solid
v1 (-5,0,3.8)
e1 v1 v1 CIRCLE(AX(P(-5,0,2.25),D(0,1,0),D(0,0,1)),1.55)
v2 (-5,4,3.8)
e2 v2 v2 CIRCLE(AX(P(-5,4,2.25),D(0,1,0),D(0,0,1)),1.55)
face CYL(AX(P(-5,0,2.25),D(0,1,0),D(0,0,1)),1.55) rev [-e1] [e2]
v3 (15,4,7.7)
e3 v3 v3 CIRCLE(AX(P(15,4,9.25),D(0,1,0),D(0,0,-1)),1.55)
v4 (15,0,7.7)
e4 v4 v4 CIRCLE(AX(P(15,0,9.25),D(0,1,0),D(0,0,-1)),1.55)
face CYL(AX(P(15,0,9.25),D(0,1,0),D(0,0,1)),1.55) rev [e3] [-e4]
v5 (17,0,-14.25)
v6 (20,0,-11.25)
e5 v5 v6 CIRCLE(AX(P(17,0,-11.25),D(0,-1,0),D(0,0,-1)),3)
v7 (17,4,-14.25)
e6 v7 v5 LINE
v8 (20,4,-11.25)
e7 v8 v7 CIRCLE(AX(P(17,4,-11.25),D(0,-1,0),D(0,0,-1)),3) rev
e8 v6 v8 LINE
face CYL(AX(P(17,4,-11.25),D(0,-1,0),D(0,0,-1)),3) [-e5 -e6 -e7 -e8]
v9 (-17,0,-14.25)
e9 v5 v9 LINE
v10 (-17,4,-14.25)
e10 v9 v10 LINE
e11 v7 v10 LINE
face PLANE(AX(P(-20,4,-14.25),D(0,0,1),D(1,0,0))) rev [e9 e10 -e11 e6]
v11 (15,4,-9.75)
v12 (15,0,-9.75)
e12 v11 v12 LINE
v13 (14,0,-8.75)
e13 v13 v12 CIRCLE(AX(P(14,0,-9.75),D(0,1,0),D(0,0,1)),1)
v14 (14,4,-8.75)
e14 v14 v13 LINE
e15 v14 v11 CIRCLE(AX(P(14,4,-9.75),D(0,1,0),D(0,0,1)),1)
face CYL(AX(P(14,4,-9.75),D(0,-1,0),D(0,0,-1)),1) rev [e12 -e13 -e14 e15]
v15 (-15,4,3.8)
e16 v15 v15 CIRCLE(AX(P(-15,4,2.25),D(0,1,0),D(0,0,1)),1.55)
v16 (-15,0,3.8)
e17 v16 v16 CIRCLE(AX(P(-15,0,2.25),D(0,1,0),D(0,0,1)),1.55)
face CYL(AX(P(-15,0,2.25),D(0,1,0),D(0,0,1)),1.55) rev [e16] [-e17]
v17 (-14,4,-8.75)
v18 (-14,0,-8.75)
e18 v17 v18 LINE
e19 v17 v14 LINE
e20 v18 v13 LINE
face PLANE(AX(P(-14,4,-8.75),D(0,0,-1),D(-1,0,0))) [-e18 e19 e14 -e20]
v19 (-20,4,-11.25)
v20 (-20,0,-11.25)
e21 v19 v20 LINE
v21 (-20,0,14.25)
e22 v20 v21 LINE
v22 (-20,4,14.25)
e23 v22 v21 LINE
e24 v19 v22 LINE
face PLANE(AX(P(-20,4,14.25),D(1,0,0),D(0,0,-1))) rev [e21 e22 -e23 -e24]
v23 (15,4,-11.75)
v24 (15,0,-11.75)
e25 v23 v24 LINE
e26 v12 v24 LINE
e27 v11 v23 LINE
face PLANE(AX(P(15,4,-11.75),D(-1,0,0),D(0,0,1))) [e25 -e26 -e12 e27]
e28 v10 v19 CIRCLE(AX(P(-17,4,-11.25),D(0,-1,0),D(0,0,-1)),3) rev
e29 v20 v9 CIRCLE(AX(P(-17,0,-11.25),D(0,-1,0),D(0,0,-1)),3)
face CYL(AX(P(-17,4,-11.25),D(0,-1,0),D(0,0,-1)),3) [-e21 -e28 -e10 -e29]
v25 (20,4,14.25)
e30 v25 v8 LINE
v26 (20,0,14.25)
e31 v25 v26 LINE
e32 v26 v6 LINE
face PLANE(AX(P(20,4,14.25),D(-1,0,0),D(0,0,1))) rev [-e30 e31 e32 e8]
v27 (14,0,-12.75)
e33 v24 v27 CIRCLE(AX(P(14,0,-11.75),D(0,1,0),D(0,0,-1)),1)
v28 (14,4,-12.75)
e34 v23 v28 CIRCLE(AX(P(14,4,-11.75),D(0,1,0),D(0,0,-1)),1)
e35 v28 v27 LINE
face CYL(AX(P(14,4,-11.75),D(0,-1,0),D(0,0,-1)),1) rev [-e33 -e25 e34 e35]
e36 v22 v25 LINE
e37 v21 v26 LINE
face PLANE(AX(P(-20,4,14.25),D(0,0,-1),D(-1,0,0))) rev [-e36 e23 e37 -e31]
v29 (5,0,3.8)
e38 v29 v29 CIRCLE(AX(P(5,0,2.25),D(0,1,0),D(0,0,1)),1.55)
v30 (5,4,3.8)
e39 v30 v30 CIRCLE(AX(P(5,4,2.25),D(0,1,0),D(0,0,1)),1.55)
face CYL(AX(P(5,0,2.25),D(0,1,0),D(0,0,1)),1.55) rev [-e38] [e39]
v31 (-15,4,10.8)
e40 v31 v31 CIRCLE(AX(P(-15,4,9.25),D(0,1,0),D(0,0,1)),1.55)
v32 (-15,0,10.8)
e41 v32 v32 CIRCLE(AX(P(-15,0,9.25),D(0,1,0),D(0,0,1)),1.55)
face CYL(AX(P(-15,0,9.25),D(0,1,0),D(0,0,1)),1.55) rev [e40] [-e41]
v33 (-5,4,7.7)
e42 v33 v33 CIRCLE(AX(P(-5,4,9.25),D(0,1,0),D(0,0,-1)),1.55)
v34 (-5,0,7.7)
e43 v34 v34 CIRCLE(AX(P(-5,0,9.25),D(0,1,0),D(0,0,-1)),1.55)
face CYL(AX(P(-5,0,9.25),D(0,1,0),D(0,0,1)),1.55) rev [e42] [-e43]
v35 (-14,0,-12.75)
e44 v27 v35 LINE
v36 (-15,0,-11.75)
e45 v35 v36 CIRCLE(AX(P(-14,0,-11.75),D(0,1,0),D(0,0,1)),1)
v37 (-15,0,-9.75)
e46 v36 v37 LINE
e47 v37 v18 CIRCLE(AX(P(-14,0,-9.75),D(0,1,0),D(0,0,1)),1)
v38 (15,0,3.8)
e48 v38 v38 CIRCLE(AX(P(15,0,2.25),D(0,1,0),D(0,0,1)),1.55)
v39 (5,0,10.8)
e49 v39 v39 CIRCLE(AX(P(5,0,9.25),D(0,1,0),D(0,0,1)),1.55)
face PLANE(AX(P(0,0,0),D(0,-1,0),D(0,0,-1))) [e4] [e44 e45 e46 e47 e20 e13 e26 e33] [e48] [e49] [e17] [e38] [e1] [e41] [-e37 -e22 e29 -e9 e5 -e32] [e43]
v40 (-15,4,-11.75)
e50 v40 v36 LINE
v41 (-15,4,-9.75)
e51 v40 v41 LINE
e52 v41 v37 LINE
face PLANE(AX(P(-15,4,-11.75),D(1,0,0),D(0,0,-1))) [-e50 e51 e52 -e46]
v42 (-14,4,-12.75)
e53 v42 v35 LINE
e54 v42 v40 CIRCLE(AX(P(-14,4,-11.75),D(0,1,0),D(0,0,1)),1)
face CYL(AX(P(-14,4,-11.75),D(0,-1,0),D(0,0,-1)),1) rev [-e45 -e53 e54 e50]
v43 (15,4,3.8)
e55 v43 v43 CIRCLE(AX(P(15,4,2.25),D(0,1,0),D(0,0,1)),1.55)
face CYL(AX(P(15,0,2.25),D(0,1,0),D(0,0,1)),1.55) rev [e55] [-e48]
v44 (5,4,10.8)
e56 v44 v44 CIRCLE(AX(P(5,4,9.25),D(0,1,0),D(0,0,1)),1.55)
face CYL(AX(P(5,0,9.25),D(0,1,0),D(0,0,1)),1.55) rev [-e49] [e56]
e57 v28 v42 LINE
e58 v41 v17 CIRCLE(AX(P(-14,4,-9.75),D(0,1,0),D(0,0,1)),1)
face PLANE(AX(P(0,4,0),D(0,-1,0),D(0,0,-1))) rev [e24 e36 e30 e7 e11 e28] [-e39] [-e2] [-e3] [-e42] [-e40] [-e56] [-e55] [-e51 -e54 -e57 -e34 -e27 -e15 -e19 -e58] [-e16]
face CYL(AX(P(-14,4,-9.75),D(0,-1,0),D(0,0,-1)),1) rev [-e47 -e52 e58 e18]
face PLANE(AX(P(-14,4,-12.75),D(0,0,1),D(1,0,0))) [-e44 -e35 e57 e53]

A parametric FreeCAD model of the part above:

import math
import FreeCAD as App
import Part
import Sketcher
from FreeCAD import Vector


def edges_at(feature, points):
    """Names of the edges that pass closest to the given points."""
    edges = feature.Shape.Edges
    near = lambda p: min(range(len(edges)), key=lambda i: edges[i].distToShape(Part.Vertex(*p))[0])
    return sorted({f"Edge{near(p) + 1}" for p in points})

doc = App.newDocument("Part")
body = doc.addObject("PartDesign::Body", "Body")

# Sketch on XZ plane
sketch1 = doc.addObject("Sketcher::SketchObject", "Sketch")
body.addObject(sketch1)
sketch1.AttachmentSupport = (doc.XZ_Plane, [""])
sketch1.MapMode = "FlatFace"
sketch1.addGeometry(Part.LineSegment(Vector(-20, -14.2, 0), Vector(-20, 14.2, 0)), False)
sketch1.addGeometry(Part.LineSegment(Vector(-20, 14.2, 0), Vector(20, 14.2, 0)), False)
sketch1.addGeometry(Part.LineSegment(Vector(20, 14.2, 0), Vector(20, -14.2, 0)), False)
sketch1.addGeometry(Part.LineSegment(Vector(20, -14.2, 0), Vector(-20, -14.2, 0)), False)
sketch1.addGeometry(Part.ArcOfCircle(Part.Circle(Vector(-14, -11.7, 0), Vector(0, 0, 1), 1), math.radians(-180), math.radians(-90)), False)
sketch1.addGeometry(Part.LineSegment(Vector(-14, -12.8, 0), Vector(14, -12.8, 0)), False)
sketch1.addGeometry(Part.ArcOfCircle(Part.Circle(Vector(14, -11.7, 0), Vector(0, 0, 1), 1), math.radians(-90), math.radians(0)), False)
sketch1.addGeometry(Part.LineSegment(Vector(15, -11.8, 0), Vector(15, -9.8, 0)), False)
sketch1.addGeometry(Part.ArcOfCircle(Part.Circle(Vector(14, -9.8, 0), Vector(0, 0, 1), 1), math.radians(0), math.radians(90)), False)
sketch1.addGeometry(Part.LineSegment(Vector(14, -8.8, 0), Vector(-14, -8.8, 0)), False)
sketch1.addGeometry(Part.ArcOfCircle(Part.Circle(Vector(-14, -9.8, 0), Vector(0, 0, 1), 1), math.radians(90), math.radians(180)), False)
sketch1.addGeometry(Part.LineSegment(Vector(-15, -9.8, 0), Vector(-15, -11.8, 0)), False)
sketch1.addConstraint(Sketcher.Constraint("Coincident", 0, 2, 1, 1))
sketch1.addConstraint(Sketcher.Constraint("Coincident", 1, 2, 2, 1))
sketch1.addConstraint(Sketcher.Constraint("Coincident", 2, 2, 3, 1))
sketch1.addConstraint(Sketcher.Constraint("Coincident", 3, 2, 0, 1))
sketch1.addConstraint(Sketcher.Constraint("Tangent", 4, 2, 5, 1))
sketch1.addConstraint(Sketcher.Constraint("Tangent", 5, 2, 6, 1))
sketch1.addConstraint(Sketcher.Constraint("Tangent", 6, 2, 7, 1))
sketch1.addConstraint(Sketcher.Constraint("Tangent", 7, 2, 8, 1))
sketch1.addConstraint(Sketcher.Constraint("Tangent", 8, 2, 9, 1))
sketch1.addConstraint(Sketcher.Constraint("Tangent", 9, 2, 10, 1))
sketch1.addConstraint(Sketcher.Constraint("Tangent", 10, 2, 11, 1))
sketch1.addConstraint(Sketcher.Constraint("Tangent", 11, 2, 4, 1))
sketch1.addConstraint(Sketcher.Constraint("Vertical", 0))
sketch1.addConstraint(Sketcher.Constraint("Horizontal", 1))
sketch1.addConstraint(Sketcher.Constraint("Vertical", 2))
sketch1.addConstraint(Sketcher.Constraint("Horizontal", 3))
sketch1.addConstraint(Sketcher.Constraint("Horizontal", 5))
sketch1.addConstraint(Sketcher.Constraint("Vertical", 7))
sketch1.addConstraint(Sketcher.Constraint("Horizontal", 9))
sketch1.addConstraint(Sketcher.Constraint("Vertical", 11))
sketch1.addConstraint(Sketcher.Constraint("Equal", 4, 6))
sketch1.addConstraint(Sketcher.Constraint("Equal", 6, 8))
sketch1.addConstraint(Sketcher.Constraint("Equal", 8, 10))
sketch1.addConstraint(Sketcher.Constraint("Symmetric", 0, 2, 2, 2, -1, 1))
sketch1.addConstraint(Sketcher.Constraint("Radius", 4, 1.0))
sketch1.addConstraint(Sketcher.Constraint("DistanceX", 1, 1, 1, 2, 40.0))
sketch1.addConstraint(Sketcher.Constraint("DistanceX", 5, 1, 5, 2, 28.0))
sketch1.addConstraint(Sketcher.Constraint("DistanceY", 7, 1, 7, 2, 2.0))
sketch1.addConstraint(Sketcher.Constraint("DistanceY", 0, 1, 0, 2, 28.5))
sketch1.addConstraint(Sketcher.Constraint("DistanceX", 4, 3, -1, 1, 14.0))
sketch1.addConstraint(Sketcher.Constraint("DistanceY", 10, 3, 0, 2, 24.0))
pad1 = doc.addObject("PartDesign::Pad", "Pad")
body.addObject(pad1)
pad1.Profile = sketch1
pad1.Length = 4
pad1.Reversed = True

# Sketch on XZ plane
sketch2 = doc.addObject("Sketcher::SketchObject", "Sketch001")
body.addObject(sketch2)
sketch2.AttachmentSupport = (doc.XZ_Plane, [""])
sketch2.MapMode = "FlatFace"
sketch2.AttachmentOffset = App.Placement(Vector(0, 0, -4), App.Rotation())
sketch2.addGeometry(Part.Circle(Vector(-15, 9.2, 0), Vector(0, 0, 1), 1.6), False)
sketch2.addGeometry(Part.Circle(Vector(5, 9.2, 0), Vector(0, 0, 1), 1.6), False)
sketch2.addGeometry(Part.Circle(Vector(15, 9.2, 0), Vector(0, 0, 1), 1.6), False)
sketch2.addGeometry(Part.Circle(Vector(-5, 9.2, 0), Vector(0, 0, 1), 1.6), False)
sketch2.addConstraint(Sketcher.Constraint("Equal", 0, 1))
sketch2.addConstraint(Sketcher.Constraint("Equal", 1, 2))
sketch2.addConstraint(Sketcher.Constraint("Equal", 2, 3))
sketch2.addConstraint(Sketcher.Constraint("Symmetric", 0, 3, 2, 3, -2))
sketch2.addConstraint(Sketcher.Constraint("Symmetric", 1, 3, 3, 3, -2))
sketch2.addConstraint(Sketcher.Constraint("Horizontal", 0, 3, 1, 3))
sketch2.addConstraint(Sketcher.Constraint("Diameter", 0, 3.1))
sketch2.addConstraint(Sketcher.Constraint("DistanceX", 0, 3, -1, 1, 15.0))
sketch2.addConstraint(Sketcher.Constraint("DistanceX", -1, 1, 1, 3, 5.0))
sketch2.addConstraint(Sketcher.Constraint("DistanceY", -1, 1, 0, 3, 9.25))
pocket1 = doc.addObject("PartDesign::Pocket", "Pocket")
body.addObject(pocket1)
pocket1.Profile = sketch2
pocket1.Type = "ThroughAll"
pocket1.Reversed = True

# Sketch on XZ plane
sketch3 = doc.addObject("Sketcher::SketchObject", "Sketch002")
body.addObject(sketch3)
sketch3.AttachmentSupport = (doc.XZ_Plane, [""])
sketch3.MapMode = "FlatFace"
sketch3.AttachmentOffset = App.Placement(Vector(0, 0, -4), App.Rotation())
sketch3.addGeometry(Part.Circle(Vector(-15, 2.2, 0), Vector(0, 0, 1), 1.6), False)
sketch3.addGeometry(Part.Circle(Vector(-5, 2.2, 0), Vector(0, 0, 1), 1.6), False)
sketch3.addGeometry(Part.Circle(Vector(5, 2.2, 0), Vector(0, 0, 1), 1.6), False)
sketch3.addGeometry(Part.Circle(Vector(15, 2.2, 0), Vector(0, 0, 1), 1.6), False)
sketch3.addConstraint(Sketcher.Constraint("Equal", 0, 1))
sketch3.addConstraint(Sketcher.Constraint("Equal", 1, 2))
sketch3.addConstraint(Sketcher.Constraint("Equal", 2, 3))
sketch3.addConstraint(Sketcher.Constraint("Symmetric", 1, 3, 2, 3, -2))
sketch3.addConstraint(Sketcher.Constraint("Symmetric", 0, 3, 3, 3, -2))
sketch3.addConstraint(Sketcher.Constraint("Horizontal", 0, 3, 1, 3))
sketch3.addConstraint(Sketcher.Constraint("Diameter", 0, 3.1))
sketch3.addConstraint(Sketcher.Constraint("DistanceX", 0, 3, -1, 1, 15.0))
sketch3.addConstraint(Sketcher.Constraint("DistanceX", 1, 3, -1, 1, 5.0))
sketch3.addConstraint(Sketcher.Constraint("DistanceY", -1, 1, 0, 3, 2.25))
pocket2 = doc.addObject("PartDesign::Pocket", "Pocket001")
body.addObject(pocket2)
pocket2.Profile = sketch3
pocket2.Type = "ThroughAll"
pocket2.Reversed = True
doc.recompute()

fillet = doc.addObject("PartDesign::Fillet", "Fillet")
body.addObject(fillet)
fillet.Base = (pocket2, edges_at(pocket2, [(-20, 2, -14.25), (20, 2, -14.25)]))
fillet.Radius = 3

doc.recompute()
